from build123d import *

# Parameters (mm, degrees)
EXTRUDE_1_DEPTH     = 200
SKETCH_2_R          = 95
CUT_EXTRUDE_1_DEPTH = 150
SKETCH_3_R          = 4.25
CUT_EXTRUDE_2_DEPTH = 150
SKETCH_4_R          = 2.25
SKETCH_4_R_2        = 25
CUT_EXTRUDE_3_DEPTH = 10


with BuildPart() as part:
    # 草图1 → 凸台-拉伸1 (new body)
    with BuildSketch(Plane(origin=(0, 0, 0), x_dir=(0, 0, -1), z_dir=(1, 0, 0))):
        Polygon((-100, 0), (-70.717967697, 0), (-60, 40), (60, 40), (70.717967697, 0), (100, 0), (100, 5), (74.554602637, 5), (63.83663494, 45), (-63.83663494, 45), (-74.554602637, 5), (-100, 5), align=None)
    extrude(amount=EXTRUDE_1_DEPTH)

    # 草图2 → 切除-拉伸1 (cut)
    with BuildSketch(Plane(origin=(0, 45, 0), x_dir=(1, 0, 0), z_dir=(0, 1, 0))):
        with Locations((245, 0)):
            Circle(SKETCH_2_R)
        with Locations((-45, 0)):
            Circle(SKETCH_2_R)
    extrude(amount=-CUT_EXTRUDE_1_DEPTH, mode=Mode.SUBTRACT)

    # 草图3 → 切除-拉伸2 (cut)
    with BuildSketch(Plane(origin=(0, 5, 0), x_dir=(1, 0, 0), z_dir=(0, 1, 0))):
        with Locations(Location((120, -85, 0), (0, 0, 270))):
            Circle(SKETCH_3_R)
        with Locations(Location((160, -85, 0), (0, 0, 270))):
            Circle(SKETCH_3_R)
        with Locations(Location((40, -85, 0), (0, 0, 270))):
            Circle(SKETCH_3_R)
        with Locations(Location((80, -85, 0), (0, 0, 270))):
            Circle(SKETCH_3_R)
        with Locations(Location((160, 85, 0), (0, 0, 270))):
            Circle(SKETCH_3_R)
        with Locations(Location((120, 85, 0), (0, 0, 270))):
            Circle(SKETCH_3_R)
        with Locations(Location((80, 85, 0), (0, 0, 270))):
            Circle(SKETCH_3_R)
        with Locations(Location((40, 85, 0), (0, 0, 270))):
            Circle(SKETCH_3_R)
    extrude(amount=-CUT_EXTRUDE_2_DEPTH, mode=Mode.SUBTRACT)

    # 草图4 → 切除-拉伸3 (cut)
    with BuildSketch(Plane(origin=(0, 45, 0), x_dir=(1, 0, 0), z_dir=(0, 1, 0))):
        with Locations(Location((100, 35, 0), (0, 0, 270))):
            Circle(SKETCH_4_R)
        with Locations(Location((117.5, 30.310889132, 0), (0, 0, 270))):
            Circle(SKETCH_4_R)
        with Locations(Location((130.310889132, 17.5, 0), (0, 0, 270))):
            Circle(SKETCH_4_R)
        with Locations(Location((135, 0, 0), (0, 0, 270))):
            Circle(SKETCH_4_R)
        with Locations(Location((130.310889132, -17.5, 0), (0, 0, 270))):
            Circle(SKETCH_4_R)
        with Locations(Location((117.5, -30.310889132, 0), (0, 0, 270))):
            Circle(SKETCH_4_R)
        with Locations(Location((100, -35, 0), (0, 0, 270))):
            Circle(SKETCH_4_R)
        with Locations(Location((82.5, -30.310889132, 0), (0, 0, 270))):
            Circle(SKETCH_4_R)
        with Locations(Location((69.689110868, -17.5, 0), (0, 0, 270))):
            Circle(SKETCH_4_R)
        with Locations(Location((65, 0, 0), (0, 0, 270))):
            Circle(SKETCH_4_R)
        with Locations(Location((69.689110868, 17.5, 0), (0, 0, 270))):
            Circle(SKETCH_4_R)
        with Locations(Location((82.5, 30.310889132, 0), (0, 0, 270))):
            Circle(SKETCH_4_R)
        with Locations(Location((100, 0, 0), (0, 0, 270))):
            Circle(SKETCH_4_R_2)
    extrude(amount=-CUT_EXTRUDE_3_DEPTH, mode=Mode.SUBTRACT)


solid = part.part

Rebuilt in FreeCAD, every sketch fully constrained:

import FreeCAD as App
import Part
import Sketcher

V = App.Vector
Q = App.Units.Quantity


def add_polygon(sketch, points):
    """Adds a closed chain of lines whose ends are joined by coincident constraints."""
    first, n = sketch.GeometryCount, len(points)
    for a, b in zip(points, points[1:] + points[:1]):
        sketch.addGeometry(Part.LineSegment(App.Vector(*a, 0), App.Vector(*b, 0)), False)
    for i in range(n):
        sketch.addConstraint(Sketcher.Constraint("Coincident", first + i, 2, first + (i + 1) % n, 1))

doc = App.newDocument("Part")
body = doc.addObject("PartDesign::Body", "Body")

sketch1 = body.newObject("Sketcher::SketchObject", "Sketch")
sketch1.AttachmentSupport = (doc.getObject("YZ_Plane"), [""])
sketch1.MapMode = "FlatFace"
add_polygon(sketch1, [(0, 100), (0, 71), (40, 60), (40, -60), (0, -71), (0, -100), (5, -100), (5, -75), (45, -64), (45, 64), (5, 75), (5, 100)])
sketch1.addConstraint([
    Sketcher.Constraint("Vertical", 0),
    Sketcher.Constraint("Vertical", 2),
    Sketcher.Constraint("Vertical", 4),
    Sketcher.Constraint("Horizontal", 5),
    Sketcher.Constraint("Vertical", 6),
    Sketcher.Constraint("Vertical", 8),
    Sketcher.Constraint("Vertical", 10),
    Sketcher.Constraint("Horizontal", 11),
    Sketcher.Constraint("Symmetric", 0, 2, 3, 2, -1, 1),
    Sketcher.Constraint("Symmetric", 6, 2, 9, 2, -1),
    Sketcher.Constraint("Symmetric", 4, 2, 11, 2, -1),
    Sketcher.Constraint("Parallel", 3, 7),
    Sketcher.Constraint("Parallel", 1, 9),
    Sketcher.Constraint("Equal", 1, 3),
    Sketcher.Constraint("Equal", 3, 7),
    Sketcher.Constraint("DistanceX", 5, 1, 5, 2, Q("5 mm")),
    Sketcher.Constraint("DistanceY", 2, 2, 2, 1, Q("120 mm")),
    Sketcher.Constraint("Angle", 1, Q("-15 deg")),
    Sketcher.Constraint("DistanceX", -1, 1, 1, 2, Q("40 mm")),
    Sketcher.Constraint("DistanceY", 4, 2, -1, 1, Q("100 mm")),
    Sketcher.Constraint("DistanceY", 8, 1, 8, 2, Q("127.67327 mm")),
])
pad1 = body.newObject("PartDesign::Pad", "Pad")
pad1.Profile = sketch1
pad1.Length = 200

sketch2 = body.newObject("Sketcher::SketchObject", "Sketch001")
sketch2.AttachmentSupport = (doc.getObject("XZ_Plane"), [""])
sketch2.MapMode = "FlatFace"
sketch2.AttachmentOffset = App.Placement(V(0, 0, -45), App.Rotation())
sketch2.addGeometry([
    Part.Circle(V(245, 0, 0), V(0, 0, 1), 95),
    Part.Circle(V(-45, 0, 0), V(0, 0, 1), 95),
], False)
sketch2.addConstraint([
    Sketcher.Constraint("Equal", 0, 1),
    Sketcher.Constraint("PointOnObject", 0, 3, -1),
    Sketcher.Constraint("PointOnObject", 1, 3, -1),
    Sketcher.Constraint("Diameter", 0, Q("190 mm")),
    Sketcher.Constraint("DistanceX", -1, 1, 0, 3, Q("245 mm")),
    Sketcher.Constraint("DistanceX", 1, 3, -1, 1, Q("45 mm")),
])
pocket1 = body.newObject("PartDesign::Pocket", "Pocket")
pocket1.Profile = sketch2
pocket1.Length = 150
pocket1.Reversed = True

sketch3 = body.newObject("Sketcher::SketchObject", "Sketch002")
sketch3.AttachmentSupport = (doc.getObject("XZ_Plane"), [""])
sketch3.MapMode = "FlatFace"
sketch3.AttachmentOffset = App.Placement(V(0, 0, -5), App.Rotation())
sketch3.addGeometry([
    Part.Circle(V(120, 85, 0), V(0, 0, 1), 4.2),
    Part.Circle(V(160, 85, 0), V(0, 0, 1), 4.2),
    Part.Circle(V(40, 85, 0), V(0, 0, 1), 4.2),
    Part.Circle(V(80, 85, 0), V(0, 0, 1), 4.2),
    Part.Circle(V(160, -85, 0), V(0, 0, 1), 4.2),
    Part.Circle(V(120, -85, 0), V(0, 0, 1), 4.2),
    Part.Circle(V(80, -85, 0), V(0, 0, 1), 4.2),
    Part.Circle(V(40, -85, 0), V(0, 0, 1), 4.2),
], False)
sketch3.addConstraint([
    Sketcher.Constraint("Equal", 0, 1),
    Sketcher.Constraint("Equal", 1, 2),
    Sketcher.Constraint("Equal", 2, 3),
    Sketcher.Constraint("Equal", 3, 4),
    Sketcher.Constraint("Equal", 4, 5),
    Sketcher.Constraint("Equal", 5, 6),
    Sketcher.Constraint("Equal", 6, 7),
    Sketcher.Constraint("Symmetric", 1, 3, 4, 3, -1),
    Sketcher.Constraint("Symmetric", 0, 3, 5, 3, -1),
    Sketcher.Constraint("Symmetric", 3, 3, 6, 3, -1),
    Sketcher.Constraint("Symmetric", 2, 3, 7, 3, -1),
    Sketcher.Constraint("Horizontal", 0, 3, 1, 3),
    Sketcher.Constraint("Horizontal", 1, 3, 2, 3),
    Sketcher.Constraint("Horizontal", 2, 3, 3, 3),
    Sketcher.Constraint("Diameter", 0, Q("8.5 mm")),
    Sketcher.Constraint("DistanceX", -1, 1, 0, 3, Q("120 mm")),
    Sketcher.Constraint("DistanceY", -1, 1, 0, 3, Q("85 mm")),
    Sketcher.Constraint("DistanceX", -1, 1, 1, 3, Q("160 mm")),
    Sketcher.Constraint("DistanceX", -1, 1, 2, 3, Q("40 mm")),
    Sketcher.Constraint("DistanceX", -1, 1, 3, 3, Q("80 mm")),
])
pocket2 = body.newObject("PartDesign::Pocket", "Pocket001")
pocket2.Profile = sketch3
pocket2.Length = 150
pocket2.Reversed = True

sketch4 = body.newObject("Sketcher::SketchObject", "Sketch003")
sketch4.AttachmentSupport = (doc.getObject("XZ_Plane"), [""])
sketch4.MapMode = "FlatFace"
sketch4.AttachmentOffset = App.Placement(V(0, 0, -45), App.Rotation())
sketch4.addGeometry([
    Part.Circle(V(100, -35, 0), V(0, 0, 1), 2.2),
    Part.Circle(V(117.5, -30.3, 0), V(0, 0, 1), 2.2),
    Part.Circle(V(130.3, -17.5, 0), V(0, 0, 1), 2.2),
    Part.Circle(V(135, 0, 0), V(0, 0, 1), 2.2),
    Part.Circle(V(130.3, 17.5, 0), V(0, 0, 1), 2.2),
    Part.Circle(V(117.5, 30.3, 0), V(0, 0, 1), 2.2),
    Part.Circle(V(100, 35, 0), V(0, 0, 1), 2.2),
    Part.Circle(V(82.5, 30.3, 0), V(0, 0, 1), 2.2),
    Part.Circle(V(69.7, 17.5, 0), V(0, 0, 1), 2.2),
    Part.Circle(V(65, 0, 0), V(0, 0, 1), 2.2),
    Part.Circle(V(69.7, -17.5, 0), V(0, 0, 1), 2.2),
    Part.Circle(V(82.5, -30.3, 0), V(0, 0, 1), 2.2),
    Part.Circle(V(100, 0, 0), V(0, 0, 1), 25),
], False)
sketch4.addConstraint([
    Sketcher.Constraint("Equal", 0, 1),
    Sketcher.Constraint("Equal", 1, 2),
    Sketcher.Constraint("Equal", 2, 3),
    Sketcher.Constraint("Equal", 3, 4),
    Sketcher.Constraint("Equal", 4, 5),
    Sketcher.Constraint("Equal", 5, 6),
    Sketcher.Constraint("Equal", 6, 7),
    Sketcher.Constraint("Equal", 7, 8),
    Sketcher.Constraint("Equal", 8, 9),
    Sketcher.Constraint("Equal", 9, 10),
    Sketcher.Constraint("Equal", 10, 11),
    Sketcher.Constraint("Symmetric", 2, 3, 4, 3, -1),
    Sketcher.Constraint("Symmetric", 1, 3, 5, 3, -1),
    Sketcher.Constraint("Symmetric", 0, 3, 6, 3, -1),
    Sketcher.Constraint("Symmetric", 8, 3, 10, 3, -1),
    Sketcher.Constraint("Symmetric", 7, 3, 11, 3, -1),
    Sketcher.Constraint("PointOnObject", 3, 3, -1),
    Sketcher.Constraint("PointOnObject", 9, 3, -1),
    Sketcher.Constraint("PointOnObject", 12, 3, -1),
    Sketcher.Constraint("Horizontal", 5, 3, 7, 3),
    Sketcher.Constraint("Horizontal", 4, 3, 8, 3),
    Sketcher.Constraint("Vertical", 6, 3, 12, 3),
    Sketcher.Constraint("Diameter", 12, Q("50 mm")),
    Sketcher.Constraint("Diameter", 0, Q("4.5 mm")),
    Sketcher.Constraint("DistanceX", -1, 1, 0, 3, Q("100 mm")),
    Sketcher.Constraint("DistanceY", 0, 3, -1, 1, Q("35 mm")),
    Sketcher.Constraint("DistanceX", -1, 1, 3, 3, Q("135 mm")),
    Sketcher.Constraint("DistanceX", -1, 1, 9, 3, Q("65 mm")),
    Sketcher.Constraint("DistanceY", 2, 3, 4, 3, Q("35 mm")),
    Sketcher.Constraint("DistanceX", 7, 3, 5, 3, Q("35 mm")),
    Sketcher.Constraint("DistanceX", -1, 1, 1, 3, Q("117.5 mm")),
    Sketcher.Constraint("DistanceY", 1, 3, -1, 1, Q("30.310889 mm")),
    Sketcher.Constraint("DistanceX", -1, 1, 2, 3, Q("130.310889 mm")),
    Sketcher.Constraint("DistanceX", -1, 1, 8, 3, Q("69.689111 mm")),
])
pocket3 = body.newObject("PartDesign::Pocket", "Pocket002")
pocket3.Profile = sketch4
pocket3.Length = 10
pocket3.Reversed = True

doc.recompute()
